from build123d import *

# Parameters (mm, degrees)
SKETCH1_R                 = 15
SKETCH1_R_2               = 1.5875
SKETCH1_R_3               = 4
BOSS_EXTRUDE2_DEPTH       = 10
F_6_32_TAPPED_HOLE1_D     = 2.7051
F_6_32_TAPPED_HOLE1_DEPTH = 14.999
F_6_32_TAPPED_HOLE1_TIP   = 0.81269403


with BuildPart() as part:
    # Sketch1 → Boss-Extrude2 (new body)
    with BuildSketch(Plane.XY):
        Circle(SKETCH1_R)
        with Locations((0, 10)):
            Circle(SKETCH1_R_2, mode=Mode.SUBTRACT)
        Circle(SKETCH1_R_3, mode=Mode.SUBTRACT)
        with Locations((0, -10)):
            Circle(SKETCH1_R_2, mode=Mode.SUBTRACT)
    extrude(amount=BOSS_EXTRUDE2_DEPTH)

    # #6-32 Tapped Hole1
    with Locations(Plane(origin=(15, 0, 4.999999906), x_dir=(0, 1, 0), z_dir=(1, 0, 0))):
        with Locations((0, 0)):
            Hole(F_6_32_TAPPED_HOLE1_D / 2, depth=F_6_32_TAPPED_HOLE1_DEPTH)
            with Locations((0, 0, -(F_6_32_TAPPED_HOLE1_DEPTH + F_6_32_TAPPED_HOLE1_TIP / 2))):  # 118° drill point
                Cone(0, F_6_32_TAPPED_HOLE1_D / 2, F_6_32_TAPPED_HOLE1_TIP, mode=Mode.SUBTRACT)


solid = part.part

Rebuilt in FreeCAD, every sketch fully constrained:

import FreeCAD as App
import Part
import Sketcher

doc = App.newDocument("Part")
body = doc.addObject("PartDesign::Body", "Body")

# Sketch on XY plane
sketch1 = body.newObject("Sketcher::SketchObject", "Sketch")
sketch1.AttachmentSupport = (doc.getObject("XY_Plane"), [""])
sketch1.MapMode = "FlatFace"
sketch1.addGeometry([
    Part.Circle(App.Vector(0, 0, 0), App.Vector(0, 0, 1), 15),
    Part.Circle(App.Vector(0, -10, 0), App.Vector(0, 0, 1), 1.5875),
    Part.Circle(App.Vector(0, 0, 0), App.Vector(0, 0, 1), 4),
    Part.Circle(App.Vector(0, 10, 0), App.Vector(0, 0, 1), 1.5875),
], False)
sketch1.addConstraint([
    Sketcher.Constraint("Coincident", 0, 3, -1, 1),
    Sketcher.Constraint("Coincident", 2, 3, -1, 1),
    Sketcher.Constraint("Equal", 1, 3),
    Sketcher.Constraint("Symmetric", 1, 3, 3, 3, -1, 1),
    Sketcher.Constraint("PointOnObject", 1, 3, -2),
    Sketcher.Constraint("Diameter", 0, 30.0),
    Sketcher.Constraint("Diameter", 2, 8.0),
    Sketcher.Constraint("Diameter", 1, 3.175),
    Sketcher.Constraint("DistanceY", 1, 3, -1, 1, 10.0),
])
pad1 = body.newObject("PartDesign::Pad", "Pad")
pad1.Profile = sketch1
pad1.Length = 10

# Sketch on YZ plane
sketch2 = body.newObject("Sketcher::SketchObject", "Sketch001")
sketch2.AttachmentSupport = (doc.getObject("YZ_Plane"), [""])
sketch2.MapMode = "FlatFace"
sketch2.AttachmentOffset = App.Placement(App.Vector(0, 0, 15), App.Rotation())
sketch2.addGeometry(Part.Circle(App.Vector(0, 5, 0), App.Vector(0, 0, 1), 1.35255), False)
sketch2.addConstraint([
    Sketcher.Constraint("PointOnObject", 0, 3, -2),
    Sketcher.Constraint("DistanceY", -1, 1, 0, 3, 5.0),
    Sketcher.Constraint("Diameter", 0, 2.7051),
])
doc.recompute()
hole = body.newObject("PartDesign::Hole", "Hole")
hole.Profile = sketch2
hole.ThreadType = "None"
hole.Diameter = 2.7051
hole.DepthType = "Dimension"
hole.Depth = 14.999
hole.DrillPoint = "Angled"
hole.DrillPointAngle = 118

doc.recompute()
